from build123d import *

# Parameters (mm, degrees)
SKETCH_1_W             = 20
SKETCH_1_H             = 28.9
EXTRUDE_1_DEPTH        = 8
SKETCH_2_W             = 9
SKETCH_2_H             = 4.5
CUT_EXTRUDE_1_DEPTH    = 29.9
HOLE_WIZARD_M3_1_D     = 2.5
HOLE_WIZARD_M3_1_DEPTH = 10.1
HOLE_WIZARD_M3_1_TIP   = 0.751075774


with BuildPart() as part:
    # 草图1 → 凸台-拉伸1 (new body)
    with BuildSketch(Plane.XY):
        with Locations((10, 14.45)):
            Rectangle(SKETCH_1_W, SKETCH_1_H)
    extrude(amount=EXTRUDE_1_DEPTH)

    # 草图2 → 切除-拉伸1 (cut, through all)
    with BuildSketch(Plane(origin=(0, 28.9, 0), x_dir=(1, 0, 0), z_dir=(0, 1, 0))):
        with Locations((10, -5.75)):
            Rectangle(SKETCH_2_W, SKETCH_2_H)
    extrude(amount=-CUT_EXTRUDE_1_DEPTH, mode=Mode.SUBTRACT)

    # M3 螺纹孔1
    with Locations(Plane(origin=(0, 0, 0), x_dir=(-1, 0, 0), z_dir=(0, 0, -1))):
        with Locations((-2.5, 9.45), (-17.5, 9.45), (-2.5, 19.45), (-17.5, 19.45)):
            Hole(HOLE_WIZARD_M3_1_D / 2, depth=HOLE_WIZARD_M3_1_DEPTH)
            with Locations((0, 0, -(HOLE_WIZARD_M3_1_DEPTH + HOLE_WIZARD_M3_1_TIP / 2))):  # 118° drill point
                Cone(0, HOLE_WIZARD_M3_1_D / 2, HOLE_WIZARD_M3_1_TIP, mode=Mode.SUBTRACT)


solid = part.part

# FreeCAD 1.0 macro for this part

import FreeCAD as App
import Part
import Sketcher
from FreeCAD import Vector


def add_polygon(sketch, points):
    """Adds a closed chain of lines whose ends are joined by coincident constraints."""
    first, n = sketch.GeometryCount, len(points)
    for a, b in zip(points, points[1:] + points[:1]):
        sketch.addGeometry(Part.LineSegment(App.Vector(*a, 0), App.Vector(*b, 0)), False)
    for i in range(n):
        sketch.addConstraint(Sketcher.Constraint("Coincident", first + i, 2, first + (i + 1) % n, 1))

doc = App.newDocument("Part")
body = doc.addObject("PartDesign::Body", "Body")

sketch1 = body.newObject("Sketcher::SketchObject", "Sketch")
sketch1.AttachmentSupport = (doc.getObject("XY_Plane"), [""])
sketch1.MapMode = "FlatFace"
add_polygon(sketch1, [(0, 29), (0, 0), (20, 0), (20, 29)])
sketch1.addConstraint(Sketcher.Constraint("Vertical", 0))
sketch1.addConstraint(Sketcher.Constraint("Horizontal", 1))
sketch1.addConstraint(Sketcher.Constraint("Vertical", 2))
sketch1.addConstraint(Sketcher.Constraint("Horizontal", 3))
sketch1.addConstraint(Sketcher.Constraint("Coincident", 0, 2, -1, 1))
sketch1.addConstraint(Sketcher.Constraint("DistanceX", 1, 1, 1, 2, 20.0))
sketch1.addConstraint(Sketcher.Constraint("DistanceY", 0, 2, 0, 1, 28.9))
pad1 = body.newObject("PartDesign::Pad", "Pad")
pad1.Profile = sketch1
pad1.Length = 8

sketch2 = body.newObject("Sketcher::SketchObject", "Sketch001")
sketch2.AttachmentSupport = (doc.getObject("XZ_Plane"), [""])
sketch2.MapMode = "FlatFace"
sketch2.AttachmentOffset = App.Placement(Vector(0, 0, -28.9), App.Rotation())
add_polygon(sketch2, [(5.5, 3.5), (5.5, 8), (14.5, 8), (14.5, 3.5)])
sketch2.addConstraint(Sketcher.Constraint("Vertical", 0))
sketch2.addConstraint(Sketcher.Constraint("Horizontal", 1))
sketch2.addConstraint(Sketcher.Constraint("Vertical", 2))
sketch2.addConstraint(Sketcher.Constraint("Horizontal", 3))
sketch2.addConstraint(Sketcher.Constraint("DistanceX", 1, 1, 1, 2, 9.0))
sketch2.addConstraint(Sketcher.Constraint("DistanceY", 0, 1, 0, 2, 4.5))
sketch2.addConstraint(Sketcher.Constraint("DistanceY", -1, 1, 0, 2, 8.0))
sketch2.addConstraint(Sketcher.Constraint("DistanceX", -1, 1, 0, 2, 5.5))
pocket1 = body.newObject("PartDesign::Pocket", "Pocket")
pocket1.Profile = sketch2
pocket1.Type = "ThroughAll"
pocket1.Reversed = True

sketch3 = body.newObject("Sketcher::SketchObject", "Sketch002")
sketch3.AttachmentSupport = (doc.getObject("XY_Plane"), [""])
sketch3.MapMode = "FlatFace"
sketch3.addGeometry(Part.Circle(Vector(2.5, 9.4, 0), Vector(0, 0, 1), 1.2), False)
sketch3.addGeometry(Part.Circle(Vector(17.5, 9.4, 0), Vector(0, 0, 1), 1.2), False)
sketch3.addGeometry(Part.Circle(Vector(2.5, 19.4, 0), Vector(0, 0, 1), 1.2), False)
sketch3.addGeometry(Part.Circle(Vector(17.5, 19.4, 0), Vector(0, 0, 1), 1.2), False)
sketch3.addConstraint(Sketcher.Constraint("Equal", 0, 1))
sketch3.addConstraint(Sketcher.Constraint("Equal", 1, 2))
sketch3.addConstraint(Sketcher.Constraint("Equal", 2, 3))
sketch3.addConstraint(Sketcher.Constraint("Horizontal", 0, 3, 1, 3))
sketch3.addConstraint(Sketcher.Constraint("Horizontal", 2, 3, 3, 3))
sketch3.addConstraint(Sketcher.Constraint("Vertical", 0, 3, 2, 3))
sketch3.addConstraint(Sketcher.Constraint("Vertical", 1, 3, 3, 3))
sketch3.addConstraint(Sketcher.Constraint("Diameter", 0, 2.5))
sketch3.addConstraint(Sketcher.Constraint("DistanceX", 0, 3, 1, 3, 15.0))
sketch3.addConstraint(Sketcher.Constraint("DistanceY", 0, 3, 2, 3, 10.0))
sketch3.addConstraint(Sketcher.Constraint("DistanceX", -1, 1, 0, 3, 2.5))
sketch3.addConstraint(Sketcher.Constraint("DistanceY", -1, 1, 0, 3, 9.45))
doc.recompute()
hole = body.newObject("PartDesign::Hole", "Hole")
hole.Profile = sketch3
hole.ThreadType = "None"
hole.Diameter = 2.5
hole.DepthType = "Dimension"
hole.Depth = 10.1
hole.DrillPoint = "Angled"
hole.DrillPointAngle = 118
hole.Reversed = True

doc.recompute()
